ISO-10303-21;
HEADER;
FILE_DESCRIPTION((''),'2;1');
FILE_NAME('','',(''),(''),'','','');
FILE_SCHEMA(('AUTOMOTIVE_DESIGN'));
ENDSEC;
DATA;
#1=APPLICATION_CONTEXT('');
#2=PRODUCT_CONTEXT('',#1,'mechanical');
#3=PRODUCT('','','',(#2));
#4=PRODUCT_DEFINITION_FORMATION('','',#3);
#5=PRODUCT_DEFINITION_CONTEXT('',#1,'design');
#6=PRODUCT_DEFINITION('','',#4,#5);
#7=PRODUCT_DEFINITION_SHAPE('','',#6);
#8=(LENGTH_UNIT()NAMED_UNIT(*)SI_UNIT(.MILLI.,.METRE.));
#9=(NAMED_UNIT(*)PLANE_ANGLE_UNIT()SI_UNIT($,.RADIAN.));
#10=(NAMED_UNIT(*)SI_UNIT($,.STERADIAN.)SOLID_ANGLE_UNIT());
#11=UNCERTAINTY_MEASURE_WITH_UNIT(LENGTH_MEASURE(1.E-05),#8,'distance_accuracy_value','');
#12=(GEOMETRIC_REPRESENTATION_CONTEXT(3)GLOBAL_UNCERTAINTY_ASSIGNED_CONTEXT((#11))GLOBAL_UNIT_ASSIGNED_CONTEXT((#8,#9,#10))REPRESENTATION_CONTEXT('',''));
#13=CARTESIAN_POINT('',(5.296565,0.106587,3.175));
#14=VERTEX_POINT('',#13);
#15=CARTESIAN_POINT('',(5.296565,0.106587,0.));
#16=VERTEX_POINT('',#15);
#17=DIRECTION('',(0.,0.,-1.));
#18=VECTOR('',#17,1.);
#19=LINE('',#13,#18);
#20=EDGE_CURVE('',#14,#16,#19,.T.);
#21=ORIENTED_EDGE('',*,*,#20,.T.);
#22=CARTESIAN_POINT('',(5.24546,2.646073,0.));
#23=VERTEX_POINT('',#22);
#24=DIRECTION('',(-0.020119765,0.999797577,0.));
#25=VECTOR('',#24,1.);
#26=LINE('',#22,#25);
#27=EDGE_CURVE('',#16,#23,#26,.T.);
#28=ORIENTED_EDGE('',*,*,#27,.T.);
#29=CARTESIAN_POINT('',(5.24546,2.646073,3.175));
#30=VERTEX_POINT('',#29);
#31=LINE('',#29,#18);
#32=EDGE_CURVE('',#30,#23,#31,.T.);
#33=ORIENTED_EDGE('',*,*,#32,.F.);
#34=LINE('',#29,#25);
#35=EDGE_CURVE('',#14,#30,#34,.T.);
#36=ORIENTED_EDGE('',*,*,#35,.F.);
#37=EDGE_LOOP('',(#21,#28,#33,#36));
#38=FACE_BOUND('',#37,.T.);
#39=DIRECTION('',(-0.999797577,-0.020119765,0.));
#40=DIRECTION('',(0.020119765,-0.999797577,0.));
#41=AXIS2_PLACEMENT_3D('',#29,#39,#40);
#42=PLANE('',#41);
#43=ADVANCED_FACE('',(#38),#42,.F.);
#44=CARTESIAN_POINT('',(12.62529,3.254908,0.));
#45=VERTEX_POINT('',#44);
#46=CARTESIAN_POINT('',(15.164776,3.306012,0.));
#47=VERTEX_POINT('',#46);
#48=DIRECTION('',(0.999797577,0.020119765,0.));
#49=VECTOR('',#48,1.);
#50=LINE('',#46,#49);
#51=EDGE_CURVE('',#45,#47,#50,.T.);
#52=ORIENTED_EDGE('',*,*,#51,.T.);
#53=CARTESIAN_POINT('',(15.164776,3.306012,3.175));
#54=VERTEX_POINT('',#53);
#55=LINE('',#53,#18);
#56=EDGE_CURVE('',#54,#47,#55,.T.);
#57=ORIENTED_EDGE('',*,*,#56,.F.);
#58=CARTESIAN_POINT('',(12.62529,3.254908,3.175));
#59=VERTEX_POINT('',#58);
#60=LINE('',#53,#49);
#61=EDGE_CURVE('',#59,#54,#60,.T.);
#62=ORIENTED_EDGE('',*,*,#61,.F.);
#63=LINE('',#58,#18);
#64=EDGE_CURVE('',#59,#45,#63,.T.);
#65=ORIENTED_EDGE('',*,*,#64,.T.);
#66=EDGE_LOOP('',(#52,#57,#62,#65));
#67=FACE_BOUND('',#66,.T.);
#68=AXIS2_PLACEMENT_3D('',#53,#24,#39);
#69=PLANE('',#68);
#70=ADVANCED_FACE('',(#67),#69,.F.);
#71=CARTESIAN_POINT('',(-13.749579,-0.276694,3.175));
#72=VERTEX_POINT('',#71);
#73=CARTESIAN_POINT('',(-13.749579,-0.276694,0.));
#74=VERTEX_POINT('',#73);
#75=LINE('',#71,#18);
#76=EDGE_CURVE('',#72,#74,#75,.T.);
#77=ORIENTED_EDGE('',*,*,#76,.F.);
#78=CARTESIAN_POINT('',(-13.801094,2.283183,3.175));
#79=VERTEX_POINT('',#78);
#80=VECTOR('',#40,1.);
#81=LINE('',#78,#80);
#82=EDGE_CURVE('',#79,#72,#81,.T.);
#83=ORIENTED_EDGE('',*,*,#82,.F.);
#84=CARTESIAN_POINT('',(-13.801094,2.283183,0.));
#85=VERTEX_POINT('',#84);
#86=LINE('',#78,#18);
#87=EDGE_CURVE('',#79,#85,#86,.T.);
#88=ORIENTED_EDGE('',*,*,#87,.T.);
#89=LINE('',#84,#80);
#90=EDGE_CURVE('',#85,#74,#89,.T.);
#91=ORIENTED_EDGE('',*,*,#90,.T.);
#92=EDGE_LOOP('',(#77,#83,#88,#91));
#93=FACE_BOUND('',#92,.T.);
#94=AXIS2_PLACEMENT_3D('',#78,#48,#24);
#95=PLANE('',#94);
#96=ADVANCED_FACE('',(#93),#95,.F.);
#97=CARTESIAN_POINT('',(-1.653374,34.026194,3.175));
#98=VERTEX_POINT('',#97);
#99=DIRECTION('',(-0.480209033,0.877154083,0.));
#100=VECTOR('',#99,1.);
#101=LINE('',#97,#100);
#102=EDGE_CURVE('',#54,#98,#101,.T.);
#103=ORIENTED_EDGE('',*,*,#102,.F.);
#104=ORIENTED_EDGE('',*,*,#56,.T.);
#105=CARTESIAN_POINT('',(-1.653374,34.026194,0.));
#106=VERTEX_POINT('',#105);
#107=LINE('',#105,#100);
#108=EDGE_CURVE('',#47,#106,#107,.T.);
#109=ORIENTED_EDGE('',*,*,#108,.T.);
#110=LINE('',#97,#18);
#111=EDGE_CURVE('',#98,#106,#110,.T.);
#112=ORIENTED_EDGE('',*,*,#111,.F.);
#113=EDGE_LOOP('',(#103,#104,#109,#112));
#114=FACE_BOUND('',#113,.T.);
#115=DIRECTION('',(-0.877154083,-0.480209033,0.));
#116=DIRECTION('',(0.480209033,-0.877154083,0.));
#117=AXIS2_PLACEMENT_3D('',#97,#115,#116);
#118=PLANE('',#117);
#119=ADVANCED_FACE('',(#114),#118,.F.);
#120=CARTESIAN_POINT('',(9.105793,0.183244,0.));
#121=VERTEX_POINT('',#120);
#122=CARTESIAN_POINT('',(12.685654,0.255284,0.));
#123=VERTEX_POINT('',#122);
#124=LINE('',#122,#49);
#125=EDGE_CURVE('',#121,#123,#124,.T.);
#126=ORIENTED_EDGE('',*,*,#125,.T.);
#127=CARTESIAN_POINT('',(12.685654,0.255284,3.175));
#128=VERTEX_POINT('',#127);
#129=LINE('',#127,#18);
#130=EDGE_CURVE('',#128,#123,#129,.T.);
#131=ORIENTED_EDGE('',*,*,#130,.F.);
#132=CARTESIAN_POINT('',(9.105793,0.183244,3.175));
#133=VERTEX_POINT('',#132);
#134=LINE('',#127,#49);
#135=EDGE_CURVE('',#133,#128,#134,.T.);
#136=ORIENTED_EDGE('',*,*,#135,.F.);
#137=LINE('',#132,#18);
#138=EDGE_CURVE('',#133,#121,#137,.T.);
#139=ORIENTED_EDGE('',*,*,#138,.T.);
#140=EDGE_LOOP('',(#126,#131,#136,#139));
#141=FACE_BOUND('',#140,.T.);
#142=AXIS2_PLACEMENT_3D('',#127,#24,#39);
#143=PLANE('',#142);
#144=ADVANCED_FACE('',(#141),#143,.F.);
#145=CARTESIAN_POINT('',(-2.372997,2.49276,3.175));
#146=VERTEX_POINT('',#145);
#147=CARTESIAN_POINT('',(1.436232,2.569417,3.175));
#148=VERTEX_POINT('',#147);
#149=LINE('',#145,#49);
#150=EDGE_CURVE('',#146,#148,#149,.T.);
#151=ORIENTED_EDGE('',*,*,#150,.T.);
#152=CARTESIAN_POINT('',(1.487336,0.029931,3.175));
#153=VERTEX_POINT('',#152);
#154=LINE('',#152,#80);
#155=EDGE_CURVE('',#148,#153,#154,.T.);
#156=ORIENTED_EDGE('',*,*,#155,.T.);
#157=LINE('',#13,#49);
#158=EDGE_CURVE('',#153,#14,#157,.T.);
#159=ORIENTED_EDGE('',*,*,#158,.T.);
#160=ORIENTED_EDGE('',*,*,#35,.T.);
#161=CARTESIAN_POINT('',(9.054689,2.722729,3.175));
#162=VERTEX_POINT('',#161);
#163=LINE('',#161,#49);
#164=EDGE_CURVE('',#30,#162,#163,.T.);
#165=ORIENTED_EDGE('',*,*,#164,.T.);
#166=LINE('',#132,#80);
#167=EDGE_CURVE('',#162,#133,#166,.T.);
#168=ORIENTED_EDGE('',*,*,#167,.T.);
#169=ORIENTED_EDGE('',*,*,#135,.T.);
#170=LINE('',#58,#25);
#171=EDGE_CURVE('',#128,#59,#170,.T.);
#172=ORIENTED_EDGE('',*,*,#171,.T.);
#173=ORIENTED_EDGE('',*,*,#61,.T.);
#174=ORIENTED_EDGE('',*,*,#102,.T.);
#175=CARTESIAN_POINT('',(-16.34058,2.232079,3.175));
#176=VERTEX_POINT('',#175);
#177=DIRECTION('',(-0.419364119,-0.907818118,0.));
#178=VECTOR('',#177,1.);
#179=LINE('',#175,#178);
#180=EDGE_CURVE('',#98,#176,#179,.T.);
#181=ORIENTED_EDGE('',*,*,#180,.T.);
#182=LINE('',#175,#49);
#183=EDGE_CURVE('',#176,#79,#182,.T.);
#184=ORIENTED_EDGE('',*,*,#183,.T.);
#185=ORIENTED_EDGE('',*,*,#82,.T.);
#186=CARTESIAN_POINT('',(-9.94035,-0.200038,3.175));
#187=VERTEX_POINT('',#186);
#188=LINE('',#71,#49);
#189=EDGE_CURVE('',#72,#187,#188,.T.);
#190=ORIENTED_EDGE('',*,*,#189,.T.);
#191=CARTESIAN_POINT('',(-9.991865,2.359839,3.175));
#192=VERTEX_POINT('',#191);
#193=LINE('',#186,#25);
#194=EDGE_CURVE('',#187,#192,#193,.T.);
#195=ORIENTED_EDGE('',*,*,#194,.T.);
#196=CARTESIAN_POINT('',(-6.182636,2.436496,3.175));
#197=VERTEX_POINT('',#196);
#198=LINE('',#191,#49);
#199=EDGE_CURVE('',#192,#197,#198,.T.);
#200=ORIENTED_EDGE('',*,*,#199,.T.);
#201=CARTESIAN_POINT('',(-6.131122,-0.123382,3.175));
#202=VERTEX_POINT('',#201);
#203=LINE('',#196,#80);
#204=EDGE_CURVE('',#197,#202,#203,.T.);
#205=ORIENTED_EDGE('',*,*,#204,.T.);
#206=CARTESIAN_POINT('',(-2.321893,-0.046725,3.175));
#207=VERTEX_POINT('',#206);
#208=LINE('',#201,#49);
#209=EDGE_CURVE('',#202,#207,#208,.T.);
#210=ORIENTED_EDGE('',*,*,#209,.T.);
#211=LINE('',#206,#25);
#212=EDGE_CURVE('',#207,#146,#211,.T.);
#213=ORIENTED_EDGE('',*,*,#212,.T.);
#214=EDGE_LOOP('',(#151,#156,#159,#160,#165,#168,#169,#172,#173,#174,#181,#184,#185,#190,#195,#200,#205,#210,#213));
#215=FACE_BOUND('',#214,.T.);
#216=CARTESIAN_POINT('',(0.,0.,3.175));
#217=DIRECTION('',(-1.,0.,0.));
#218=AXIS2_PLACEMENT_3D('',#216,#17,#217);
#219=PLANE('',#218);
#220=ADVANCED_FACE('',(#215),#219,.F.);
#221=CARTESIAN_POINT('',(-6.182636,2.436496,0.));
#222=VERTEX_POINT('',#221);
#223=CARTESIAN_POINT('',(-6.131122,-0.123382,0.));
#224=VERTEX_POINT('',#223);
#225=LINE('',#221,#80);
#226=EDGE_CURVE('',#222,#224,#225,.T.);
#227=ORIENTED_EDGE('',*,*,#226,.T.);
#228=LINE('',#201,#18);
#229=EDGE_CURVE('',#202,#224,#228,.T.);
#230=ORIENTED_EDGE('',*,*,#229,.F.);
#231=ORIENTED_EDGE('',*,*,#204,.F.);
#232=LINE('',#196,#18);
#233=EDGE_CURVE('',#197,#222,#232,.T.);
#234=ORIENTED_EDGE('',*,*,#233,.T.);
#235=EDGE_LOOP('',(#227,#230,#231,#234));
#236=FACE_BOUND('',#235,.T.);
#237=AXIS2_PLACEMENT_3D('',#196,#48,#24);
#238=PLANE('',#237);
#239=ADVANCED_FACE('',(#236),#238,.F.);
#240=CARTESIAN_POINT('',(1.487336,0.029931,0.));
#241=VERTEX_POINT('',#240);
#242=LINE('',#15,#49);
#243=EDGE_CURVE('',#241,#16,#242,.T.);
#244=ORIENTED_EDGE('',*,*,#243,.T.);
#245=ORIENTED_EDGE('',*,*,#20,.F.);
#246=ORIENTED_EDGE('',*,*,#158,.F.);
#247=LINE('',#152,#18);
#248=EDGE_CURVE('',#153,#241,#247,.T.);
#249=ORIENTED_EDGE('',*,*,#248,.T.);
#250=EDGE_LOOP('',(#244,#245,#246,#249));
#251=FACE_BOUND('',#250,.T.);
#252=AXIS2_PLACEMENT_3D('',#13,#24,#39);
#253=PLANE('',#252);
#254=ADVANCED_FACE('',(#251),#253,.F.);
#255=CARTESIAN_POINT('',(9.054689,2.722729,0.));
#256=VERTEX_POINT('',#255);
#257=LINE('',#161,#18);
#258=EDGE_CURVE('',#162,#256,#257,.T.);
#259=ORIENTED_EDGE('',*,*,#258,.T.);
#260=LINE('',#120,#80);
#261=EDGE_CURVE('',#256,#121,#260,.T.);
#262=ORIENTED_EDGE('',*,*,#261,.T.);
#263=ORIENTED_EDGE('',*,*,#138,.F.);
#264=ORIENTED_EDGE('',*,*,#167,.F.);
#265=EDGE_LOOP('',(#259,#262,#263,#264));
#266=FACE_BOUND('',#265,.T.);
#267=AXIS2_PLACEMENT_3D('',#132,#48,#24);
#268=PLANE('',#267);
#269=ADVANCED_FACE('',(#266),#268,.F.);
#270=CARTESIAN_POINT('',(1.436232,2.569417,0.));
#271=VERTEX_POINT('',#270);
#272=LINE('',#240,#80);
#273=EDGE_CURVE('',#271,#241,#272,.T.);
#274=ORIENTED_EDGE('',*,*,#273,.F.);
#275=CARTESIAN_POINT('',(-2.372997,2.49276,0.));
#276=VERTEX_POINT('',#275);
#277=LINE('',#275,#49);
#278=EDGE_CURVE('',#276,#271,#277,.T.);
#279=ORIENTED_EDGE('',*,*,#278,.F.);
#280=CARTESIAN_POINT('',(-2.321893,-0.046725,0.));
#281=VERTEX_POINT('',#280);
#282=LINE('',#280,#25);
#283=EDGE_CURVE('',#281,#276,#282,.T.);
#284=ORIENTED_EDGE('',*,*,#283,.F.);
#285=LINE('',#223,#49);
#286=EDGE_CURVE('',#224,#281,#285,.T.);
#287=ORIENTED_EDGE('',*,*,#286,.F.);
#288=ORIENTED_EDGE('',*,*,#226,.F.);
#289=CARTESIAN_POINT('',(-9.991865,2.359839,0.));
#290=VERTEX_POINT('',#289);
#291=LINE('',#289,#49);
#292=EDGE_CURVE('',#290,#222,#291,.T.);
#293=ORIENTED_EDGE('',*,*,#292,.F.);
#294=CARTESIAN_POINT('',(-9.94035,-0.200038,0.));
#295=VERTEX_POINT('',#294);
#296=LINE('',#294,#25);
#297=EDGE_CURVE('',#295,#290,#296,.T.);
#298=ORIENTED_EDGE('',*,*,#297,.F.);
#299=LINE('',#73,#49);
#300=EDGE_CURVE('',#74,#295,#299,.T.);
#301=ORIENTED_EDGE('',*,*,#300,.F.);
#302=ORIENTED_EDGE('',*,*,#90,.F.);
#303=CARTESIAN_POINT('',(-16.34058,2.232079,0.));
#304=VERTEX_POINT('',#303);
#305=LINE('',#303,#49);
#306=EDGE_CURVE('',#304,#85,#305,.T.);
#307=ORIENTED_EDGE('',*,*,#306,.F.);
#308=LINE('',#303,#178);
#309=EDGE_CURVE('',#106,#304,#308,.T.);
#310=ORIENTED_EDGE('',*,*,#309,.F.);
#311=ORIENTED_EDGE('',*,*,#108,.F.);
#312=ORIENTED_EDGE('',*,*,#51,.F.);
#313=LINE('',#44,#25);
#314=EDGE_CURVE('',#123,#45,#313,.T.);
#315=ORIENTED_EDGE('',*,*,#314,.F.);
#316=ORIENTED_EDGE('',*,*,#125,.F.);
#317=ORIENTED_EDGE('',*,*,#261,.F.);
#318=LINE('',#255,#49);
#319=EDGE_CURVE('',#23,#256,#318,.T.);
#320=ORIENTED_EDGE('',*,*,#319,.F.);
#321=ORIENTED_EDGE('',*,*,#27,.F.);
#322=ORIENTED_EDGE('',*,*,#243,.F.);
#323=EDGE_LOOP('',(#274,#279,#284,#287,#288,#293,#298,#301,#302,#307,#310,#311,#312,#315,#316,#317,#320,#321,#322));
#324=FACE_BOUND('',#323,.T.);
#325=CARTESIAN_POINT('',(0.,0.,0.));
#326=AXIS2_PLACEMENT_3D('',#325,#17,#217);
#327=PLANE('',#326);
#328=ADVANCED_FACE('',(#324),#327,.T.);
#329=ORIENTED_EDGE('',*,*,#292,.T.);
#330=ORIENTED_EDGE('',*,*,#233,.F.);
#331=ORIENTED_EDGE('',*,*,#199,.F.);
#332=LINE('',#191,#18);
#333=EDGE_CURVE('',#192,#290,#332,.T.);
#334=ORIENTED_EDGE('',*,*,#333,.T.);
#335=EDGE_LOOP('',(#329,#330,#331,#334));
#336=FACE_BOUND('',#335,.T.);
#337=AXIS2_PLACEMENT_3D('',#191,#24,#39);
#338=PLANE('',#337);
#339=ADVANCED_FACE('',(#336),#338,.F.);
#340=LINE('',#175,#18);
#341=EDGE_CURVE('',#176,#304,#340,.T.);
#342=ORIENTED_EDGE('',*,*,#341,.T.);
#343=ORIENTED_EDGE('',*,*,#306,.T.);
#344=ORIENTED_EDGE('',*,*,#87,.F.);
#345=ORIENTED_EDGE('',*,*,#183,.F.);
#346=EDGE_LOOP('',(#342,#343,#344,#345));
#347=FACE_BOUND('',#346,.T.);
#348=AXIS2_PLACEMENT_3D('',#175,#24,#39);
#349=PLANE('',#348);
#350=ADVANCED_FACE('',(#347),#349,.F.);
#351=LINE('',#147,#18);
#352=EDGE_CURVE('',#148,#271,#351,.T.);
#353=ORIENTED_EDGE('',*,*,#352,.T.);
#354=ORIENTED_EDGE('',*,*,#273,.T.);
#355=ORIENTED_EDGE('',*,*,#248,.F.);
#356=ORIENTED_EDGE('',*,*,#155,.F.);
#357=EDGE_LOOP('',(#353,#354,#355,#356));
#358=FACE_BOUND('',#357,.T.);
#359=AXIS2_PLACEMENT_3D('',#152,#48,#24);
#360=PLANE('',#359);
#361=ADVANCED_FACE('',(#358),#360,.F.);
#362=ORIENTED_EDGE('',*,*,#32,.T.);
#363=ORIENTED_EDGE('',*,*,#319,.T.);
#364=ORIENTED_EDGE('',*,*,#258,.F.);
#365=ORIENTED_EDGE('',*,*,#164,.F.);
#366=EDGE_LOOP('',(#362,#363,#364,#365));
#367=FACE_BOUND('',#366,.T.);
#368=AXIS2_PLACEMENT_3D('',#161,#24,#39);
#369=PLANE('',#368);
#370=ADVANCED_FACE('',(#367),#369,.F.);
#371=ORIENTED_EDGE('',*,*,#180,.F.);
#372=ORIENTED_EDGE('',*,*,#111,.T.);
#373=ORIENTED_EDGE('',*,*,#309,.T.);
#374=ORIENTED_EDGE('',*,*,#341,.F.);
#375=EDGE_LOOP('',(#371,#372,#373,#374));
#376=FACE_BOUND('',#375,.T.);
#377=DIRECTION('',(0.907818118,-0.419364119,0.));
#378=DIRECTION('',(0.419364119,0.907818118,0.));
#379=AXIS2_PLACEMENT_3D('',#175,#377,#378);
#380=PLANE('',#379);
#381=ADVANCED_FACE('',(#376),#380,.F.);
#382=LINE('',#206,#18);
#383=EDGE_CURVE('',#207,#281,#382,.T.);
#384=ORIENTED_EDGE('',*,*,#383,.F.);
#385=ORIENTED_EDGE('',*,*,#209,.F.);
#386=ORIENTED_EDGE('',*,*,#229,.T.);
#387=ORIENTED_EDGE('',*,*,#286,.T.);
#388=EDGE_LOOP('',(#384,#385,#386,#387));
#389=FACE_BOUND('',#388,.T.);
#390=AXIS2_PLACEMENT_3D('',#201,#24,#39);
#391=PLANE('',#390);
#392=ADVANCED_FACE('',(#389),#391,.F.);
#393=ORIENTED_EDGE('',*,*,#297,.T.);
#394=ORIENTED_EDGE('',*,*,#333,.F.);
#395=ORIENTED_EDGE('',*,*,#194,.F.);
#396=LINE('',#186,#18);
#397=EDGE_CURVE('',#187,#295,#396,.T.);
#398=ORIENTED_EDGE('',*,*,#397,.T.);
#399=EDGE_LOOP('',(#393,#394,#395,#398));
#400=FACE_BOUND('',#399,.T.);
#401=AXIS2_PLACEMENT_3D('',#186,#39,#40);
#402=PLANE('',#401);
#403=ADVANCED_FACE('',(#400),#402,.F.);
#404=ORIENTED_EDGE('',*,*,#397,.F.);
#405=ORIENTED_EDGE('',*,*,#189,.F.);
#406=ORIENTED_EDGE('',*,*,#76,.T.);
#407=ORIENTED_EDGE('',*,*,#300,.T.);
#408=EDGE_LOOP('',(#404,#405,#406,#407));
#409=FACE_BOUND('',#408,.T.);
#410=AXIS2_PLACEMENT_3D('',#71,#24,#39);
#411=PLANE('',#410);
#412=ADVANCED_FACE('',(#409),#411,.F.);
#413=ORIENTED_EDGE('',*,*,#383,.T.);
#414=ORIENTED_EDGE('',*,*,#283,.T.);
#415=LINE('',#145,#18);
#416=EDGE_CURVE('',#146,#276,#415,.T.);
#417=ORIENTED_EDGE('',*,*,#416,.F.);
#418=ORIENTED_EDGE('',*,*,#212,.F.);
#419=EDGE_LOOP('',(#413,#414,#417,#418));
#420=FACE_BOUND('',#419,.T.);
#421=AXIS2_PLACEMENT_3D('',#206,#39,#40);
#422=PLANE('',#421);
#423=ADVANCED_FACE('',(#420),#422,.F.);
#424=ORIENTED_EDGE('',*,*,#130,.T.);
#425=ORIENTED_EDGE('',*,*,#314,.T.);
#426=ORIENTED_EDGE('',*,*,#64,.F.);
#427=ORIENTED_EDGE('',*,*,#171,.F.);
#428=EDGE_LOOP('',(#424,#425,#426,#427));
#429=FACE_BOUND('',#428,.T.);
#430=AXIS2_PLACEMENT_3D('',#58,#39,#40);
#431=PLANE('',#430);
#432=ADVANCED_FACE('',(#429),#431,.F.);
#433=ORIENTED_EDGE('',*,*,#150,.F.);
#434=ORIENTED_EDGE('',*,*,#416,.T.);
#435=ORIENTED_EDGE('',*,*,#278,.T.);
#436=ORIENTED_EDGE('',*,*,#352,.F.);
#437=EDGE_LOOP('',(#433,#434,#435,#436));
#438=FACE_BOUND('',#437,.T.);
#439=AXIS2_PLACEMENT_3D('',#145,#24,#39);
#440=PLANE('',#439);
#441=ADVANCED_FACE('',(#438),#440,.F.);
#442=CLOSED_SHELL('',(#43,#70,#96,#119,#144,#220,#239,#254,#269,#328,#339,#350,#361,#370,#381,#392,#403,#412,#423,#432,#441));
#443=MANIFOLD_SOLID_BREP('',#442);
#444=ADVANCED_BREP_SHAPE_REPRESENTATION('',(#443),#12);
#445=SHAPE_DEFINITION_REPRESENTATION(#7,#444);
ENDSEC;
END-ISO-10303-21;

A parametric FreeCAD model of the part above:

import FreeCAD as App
import Part
import Sketcher
Q = App.Units.Quantity


def add_polygon(sketch, points):
    """Adds a closed chain of lines whose ends are joined by coincident constraints."""
    first, n = sketch.GeometryCount, len(points)
    for a, b in zip(points, points[1:] + points[:1]):
        sketch.addGeometry(Part.LineSegment(App.Vector(*a, 0), App.Vector(*b, 0)), False)
    for i in range(n):
        sketch.addConstraint(Sketcher.Constraint("Coincident", first + i, 2, first + (i + 1) % n, 1))

doc = App.newDocument("Part")
body = doc.addObject("PartDesign::Body", "Body")

# Sketch on XY plane
sketch1 = body.newObject("Sketcher::SketchObject", "Sketch")
sketch1.AttachmentSupport = (doc.getObject("XY_Plane"), [""])
sketch1.MapMode = "FlatFace"
add_polygon(sketch1, [(-1.7, 34), (-16.3, 2.2), (-13.8, 2.3), (-13.7, -0.3), (-9.9, -0.2), (-10, 2.4), (-6.2, 2.4), (-6.1, -0.1), (-2.3, 0), (-2.4, 2.5), (1.4, 2.6), (1.5, 0), (5.3, 0.1), (5.2, 2.6), (9.1, 2.7), (9.1, 0.2), (12.7, 0.3), (12.6, 3.3), (15.2, 3.3)])  # lines 0-18
sketch1.addConstraint(Sketcher.Constraint("Perpendicular", 1, 2))
sketch1.addConstraint(Sketcher.Constraint("Perpendicular", 2, 3))
sketch1.addConstraint(Sketcher.Constraint("Perpendicular", 3, 4))
sketch1.addConstraint(Sketcher.Constraint("Perpendicular", 4, 5))
sketch1.addConstraint(Sketcher.Constraint("Perpendicular", 5, 6))
sketch1.addConstraint(Sketcher.Constraint("Perpendicular", 6, 7))
sketch1.addConstraint(Sketcher.Constraint("Perpendicular", 7, 8))
sketch1.addConstraint(Sketcher.Constraint("Perpendicular", 8, 9))
sketch1.addConstraint(Sketcher.Constraint("Perpendicular", 9, 10))
sketch1.addConstraint(Sketcher.Constraint("Perpendicular", 10, 11))
sketch1.addConstraint(Sketcher.Constraint("Perpendicular", 11, 12))
sketch1.addConstraint(Sketcher.Constraint("Perpendicular", 12, 13))
sketch1.addConstraint(Sketcher.Constraint("Perpendicular", 13, 14))
sketch1.addConstraint(Sketcher.Constraint("Perpendicular", 14, 15))
sketch1.addConstraint(Sketcher.Constraint("Perpendicular", 15, 16))
sketch1.addConstraint(Sketcher.Constraint("Perpendicular", 16, 17))
sketch1.addConstraint(Sketcher.Constraint("Equal", 2, 4))
sketch1.addConstraint(Sketcher.Constraint("Equal", 3, 5))
sketch1.addConstraint(Sketcher.Constraint("Equal", 4, 6))
sketch1.addConstraint(Sketcher.Constraint("Equal", 5, 7))
sketch1.addConstraint(Sketcher.Constraint("Equal", 1, 8))
sketch1.addConstraint(Sketcher.Constraint("Equal", 7, 9))
sketch1.addConstraint(Sketcher.Constraint("Equal", 8, 10))
sketch1.addConstraint(Sketcher.Constraint("Equal", 9, 11))
sketch1.addConstraint(Sketcher.Constraint("Equal", 10, 12))
sketch1.addConstraint(Sketcher.Constraint("Equal", 11, 13))
sketch1.addConstraint(Sketcher.Constraint("Equal", 12, 14))
sketch1.addConstraint(Sketcher.Constraint("Equal", 14, 17))
sketch1.addConstraint(Sketcher.Constraint("Equal", 0, 18))
sketch1.addConstraint(Sketcher.Constraint("Distance", 1, Q("0.1 in")))
sketch1.addConstraint(Sketcher.Constraint("Distance", 3, Q("0.15 in")))
sketch1.addConstraint(Sketcher.Constraint("DistanceX", 0, 2, 2, 2, 2.591))
sketch1.addConstraint(Sketcher.Constraint("DistanceY", 3, 2, 8, 2, 2.692798))
sketch1.addConstraint(Sketcher.Constraint("DistanceX", 13, 2, 16, 2, 3.570601))
sketch1.addConstraint(Sketcher.Constraint("DistanceY", 5, 2, 18, 2, 31.589698))
sketch1.addConstraint(Sketcher.Constraint("Distance", 0, 35.022561))
sketch1.addConstraint(Sketcher.Constraint("DistanceX", 0, 2, -1, 1, 16.34058))
sketch1.addConstraint(Sketcher.Constraint("DistanceY", -1, 1, 0, 2, 2.232079))
pad1 = body.newObject("PartDesign::Pad", "Pad")
pad1.Profile = sketch1
pad1.Length = Q("0.125 in")

doc.recompute()
